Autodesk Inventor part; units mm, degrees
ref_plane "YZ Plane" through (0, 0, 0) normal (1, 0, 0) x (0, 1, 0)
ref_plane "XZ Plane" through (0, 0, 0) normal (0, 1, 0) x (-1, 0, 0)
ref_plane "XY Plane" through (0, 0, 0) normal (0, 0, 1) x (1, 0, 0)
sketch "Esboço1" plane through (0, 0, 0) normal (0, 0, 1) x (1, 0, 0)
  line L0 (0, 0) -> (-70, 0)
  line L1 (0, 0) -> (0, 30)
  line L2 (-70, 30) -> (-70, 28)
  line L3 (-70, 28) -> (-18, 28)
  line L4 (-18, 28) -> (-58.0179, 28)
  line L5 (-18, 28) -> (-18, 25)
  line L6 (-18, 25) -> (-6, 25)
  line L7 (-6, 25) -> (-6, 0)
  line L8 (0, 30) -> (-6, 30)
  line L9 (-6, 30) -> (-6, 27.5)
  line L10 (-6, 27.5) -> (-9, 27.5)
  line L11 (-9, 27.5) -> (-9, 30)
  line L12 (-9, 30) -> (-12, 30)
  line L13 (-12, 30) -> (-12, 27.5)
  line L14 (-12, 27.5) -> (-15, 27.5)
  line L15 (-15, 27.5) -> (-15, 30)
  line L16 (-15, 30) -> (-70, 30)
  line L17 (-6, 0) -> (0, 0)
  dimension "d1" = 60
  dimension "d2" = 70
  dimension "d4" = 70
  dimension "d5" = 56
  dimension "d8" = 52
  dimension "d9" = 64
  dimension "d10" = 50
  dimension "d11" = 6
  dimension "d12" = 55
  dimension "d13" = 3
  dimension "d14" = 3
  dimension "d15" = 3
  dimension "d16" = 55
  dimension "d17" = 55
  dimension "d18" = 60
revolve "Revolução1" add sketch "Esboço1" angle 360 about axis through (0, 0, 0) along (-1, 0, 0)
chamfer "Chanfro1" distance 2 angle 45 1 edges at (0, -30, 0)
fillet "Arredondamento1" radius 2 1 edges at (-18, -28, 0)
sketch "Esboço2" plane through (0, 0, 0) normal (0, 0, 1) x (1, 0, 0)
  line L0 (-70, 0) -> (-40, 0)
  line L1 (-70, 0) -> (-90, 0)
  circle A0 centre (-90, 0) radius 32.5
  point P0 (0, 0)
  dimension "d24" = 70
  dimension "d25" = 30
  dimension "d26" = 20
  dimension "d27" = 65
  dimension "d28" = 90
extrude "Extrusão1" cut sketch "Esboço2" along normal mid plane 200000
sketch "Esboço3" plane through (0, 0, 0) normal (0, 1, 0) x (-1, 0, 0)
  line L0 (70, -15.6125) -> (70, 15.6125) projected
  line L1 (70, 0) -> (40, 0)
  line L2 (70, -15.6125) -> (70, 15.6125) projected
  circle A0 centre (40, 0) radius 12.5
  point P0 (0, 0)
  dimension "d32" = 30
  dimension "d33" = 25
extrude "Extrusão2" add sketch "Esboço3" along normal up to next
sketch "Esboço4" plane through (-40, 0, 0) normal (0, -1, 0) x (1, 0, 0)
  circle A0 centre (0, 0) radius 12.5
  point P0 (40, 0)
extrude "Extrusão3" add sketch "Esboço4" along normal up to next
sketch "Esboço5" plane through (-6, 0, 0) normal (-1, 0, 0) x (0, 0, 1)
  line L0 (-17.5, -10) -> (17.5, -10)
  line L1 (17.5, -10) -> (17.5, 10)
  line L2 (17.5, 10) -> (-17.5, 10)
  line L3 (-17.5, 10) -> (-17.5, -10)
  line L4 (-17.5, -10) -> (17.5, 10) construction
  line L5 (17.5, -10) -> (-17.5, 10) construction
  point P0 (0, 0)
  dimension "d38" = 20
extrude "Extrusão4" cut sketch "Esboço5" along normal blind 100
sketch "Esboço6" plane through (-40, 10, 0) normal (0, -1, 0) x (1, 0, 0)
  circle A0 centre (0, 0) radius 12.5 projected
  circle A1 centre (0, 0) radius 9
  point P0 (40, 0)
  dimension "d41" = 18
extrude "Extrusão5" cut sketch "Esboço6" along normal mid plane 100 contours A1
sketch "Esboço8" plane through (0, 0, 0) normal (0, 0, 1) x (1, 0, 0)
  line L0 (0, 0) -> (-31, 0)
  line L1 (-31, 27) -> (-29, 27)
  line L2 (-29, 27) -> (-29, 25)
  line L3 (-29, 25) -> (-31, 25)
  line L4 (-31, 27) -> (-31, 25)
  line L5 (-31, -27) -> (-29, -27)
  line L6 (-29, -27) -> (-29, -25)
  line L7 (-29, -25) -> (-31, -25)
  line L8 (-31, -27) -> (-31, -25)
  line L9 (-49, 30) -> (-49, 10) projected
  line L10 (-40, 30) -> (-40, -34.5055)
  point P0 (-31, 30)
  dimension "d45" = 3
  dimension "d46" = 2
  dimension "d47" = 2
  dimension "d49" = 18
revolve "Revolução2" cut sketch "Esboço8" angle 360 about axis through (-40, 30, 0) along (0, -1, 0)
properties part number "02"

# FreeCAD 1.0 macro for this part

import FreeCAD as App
import Part
import Sketcher
Q = App.Units.Quantity


def edges_at(feature, points):
    """Names of the edges that pass closest to the given points."""
    edges = feature.Shape.Edges
    near = lambda p: min(range(len(edges)), key=lambda i: edges[i].distToShape(Part.Vertex(*p))[0])
    return sorted({f"Edge{near(p) + 1}" for p in points})

doc = App.newDocument("Part")
body = doc.addObject("PartDesign::Body", "Body")

# Sketch on XY plane
sketch1 = doc.addObject("Sketcher::SketchObject", "Sketch")
body.addObject(sketch1)
sketch1.AttachmentSupport = (doc.XY_Plane, [""])
sketch1.MapMode = "FlatFace"
sketch1.addGeometry([
    Part.LineSegment(App.Vector(-6, 0, 0), App.Vector(0, 0, 0)),  # 0
    Part.LineSegment(App.Vector(0, 0, 0), App.Vector(0, 30, 0)),  # 1
    Part.LineSegment(App.Vector(0, 30, 0), App.Vector(-6, 30, 0)),  # 2
    Part.LineSegment(App.Vector(-6, 30, 0), App.Vector(-6, 27.5, 0)),  # 3
    Part.LineSegment(App.Vector(-6, 27.5, 0), App.Vector(-9, 27.5, 0)),  # 4
    Part.LineSegment(App.Vector(-9, 27.5, 0), App.Vector(-9, 30, 0)),  # 5
    Part.LineSegment(App.Vector(-9, 30, 0), App.Vector(-12, 30, 0)),  # 6
    Part.LineSegment(App.Vector(-12, 30, 0), App.Vector(-12, 27.5, 0)),  # 7
    Part.LineSegment(App.Vector(-12, 27.5, 0), App.Vector(-15, 27.5, 0)),  # 8
    Part.LineSegment(App.Vector(-15, 27.5, 0), App.Vector(-15, 30, 0)),  # 9
    Part.LineSegment(App.Vector(-15, 30, 0), App.Vector(-70, 30, 0)),  # 10
    Part.LineSegment(App.Vector(-70, 30, 0), App.Vector(-70, 28, 0)),  # 11
    Part.LineSegment(App.Vector(-70, 28, 0), App.Vector(-18, 28, 0)),  # 12
    Part.LineSegment(App.Vector(-18, 28, 0), App.Vector(-18, 25, 0)),  # 13
    Part.LineSegment(App.Vector(-18, 25, 0), App.Vector(-6, 25, 0)),  # 14
    Part.LineSegment(App.Vector(-6, 25, 0), App.Vector(-6, 0, 0)),  # 15
], False)
sketch1.addConstraint([
    Sketcher.Constraint("Coincident", 0, 2, 1, 1),
    Sketcher.Constraint("Coincident", 1, 2, 2, 1),
    Sketcher.Constraint("Coincident", 2, 2, 3, 1),
    Sketcher.Constraint("Coincident", 3, 2, 4, 1),
    Sketcher.Constraint("Coincident", 4, 2, 5, 1),
    Sketcher.Constraint("Coincident", 5, 2, 6, 1),
    Sketcher.Constraint("Coincident", 6, 2, 7, 1),
    Sketcher.Constraint("Coincident", 7, 2, 8, 1),
    Sketcher.Constraint("Coincident", 8, 2, 9, 1),
    Sketcher.Constraint("Coincident", 9, 2, 10, 1),
    Sketcher.Constraint("Coincident", 10, 2, 11, 1),
    Sketcher.Constraint("Coincident", 11, 2, 12, 1),
    Sketcher.Constraint("Coincident", 12, 2, 13, 1),
    Sketcher.Constraint("Coincident", 13, 2, 14, 1),
    Sketcher.Constraint("Coincident", 14, 2, 15, 1),
    Sketcher.Constraint("Coincident", 15, 2, 0, 1),
    Sketcher.Constraint("Horizontal", 0),
    Sketcher.Constraint("Vertical", 1),
    Sketcher.Constraint("Horizontal", 2),
    Sketcher.Constraint("Vertical", 3),
    Sketcher.Constraint("Horizontal", 4),
    Sketcher.Constraint("Vertical", 5),
    Sketcher.Constraint("Horizontal", 6),
    Sketcher.Constraint("Vertical", 7),
    Sketcher.Constraint("Horizontal", 8),
    Sketcher.Constraint("Vertical", 9),
    Sketcher.Constraint("Horizontal", 10),
    Sketcher.Constraint("Vertical", 11),
    Sketcher.Constraint("Horizontal", 12),
    Sketcher.Constraint("Vertical", 13),
    Sketcher.Constraint("Horizontal", 14),
    Sketcher.Constraint("Vertical", 15),
    Sketcher.Constraint("Coincident", 0, 2, -1, 1),
    Sketcher.Constraint("Horizontal", 2, 2, 5, 2),
    Sketcher.Constraint("Horizontal", 4, 2, 7, 2),
    Sketcher.Constraint("Horizontal", 6, 2, 9, 2),
    Sketcher.Constraint("Vertical", 3, 2, 14, 2),
    Sketcher.Constraint("Equal", 4, 6),
    Sketcher.Constraint("Equal", 6, 8),
    Sketcher.Constraint("Equal", 8, 13),
    Sketcher.Constraint("DistanceX", 0, 1, 0, 2, Q("6 mm")),
    Sketcher.Constraint("DistanceX", 4, 2, 4, 1, Q("3 mm")),
    Sketcher.Constraint("DistanceX", 10, 2, 10, 1, Q("55 mm")),
    Sketcher.Constraint("DistanceX", 12, 1, 12, 2, Q("52 mm")),
    Sketcher.Constraint("DistanceY", 1, 1, 1, 2, Q("30 mm")),
    Sketcher.Constraint("DistanceY", 11, 2, 11, 1, Q("2 mm")),
    Sketcher.Constraint("DistanceY", 3, 2, 3, 1, Q("2.5 mm")),
])
revolution = doc.addObject("PartDesign::Revolution", "Revolution")
body.addObject(revolution)
revolution.Profile = sketch1
revolution.ReferenceAxis = (sketch1, ["H_Axis"])
revolution.Angle = 360
doc.recompute()

chamfer = doc.addObject("PartDesign::Chamfer", "Chamfer")
body.addObject(chamfer)
chamfer.Base = (revolution, edges_at(revolution, [(0, -30, 0)]))
chamfer.Size = 2
doc.recompute()

fillet = doc.addObject("PartDesign::Fillet", "Fillet")
body.addObject(fillet)
fillet.Base = (chamfer, edges_at(chamfer, [(-18, -28, 0)]))
fillet.Radius = 2

# Sketch on XY plane
sketch2 = doc.addObject("Sketcher::SketchObject", "Sketch001")
body.addObject(sketch2)
sketch2.AttachmentSupport = (doc.XY_Plane, [""])
sketch2.MapMode = "FlatFace"
sketch2.addGeometry(Part.Circle(App.Vector(-90, 0, 0), App.Vector(0, 0, 1), 32.5), False)
sketch2.addConstraint([
    Sketcher.Constraint("PointOnObject", 0, 3, -1),
    Sketcher.Constraint("Diameter", 0, Q("65 mm")),
    Sketcher.Constraint("DistanceX", 0, 3, -1, 1, Q("90 mm")),
])
pocket1 = doc.addObject("PartDesign::Pocket", "Pocket")
body.addObject(pocket1)
pocket1.Profile = sketch2
pocket1.Length = 200000
pocket1.Midplane = True

# Sketch on XZ plane
sketch3 = doc.addObject("Sketcher::SketchObject", "Sketch002")
body.addObject(sketch3)
sketch3.AttachmentSupport = (doc.XZ_Plane, [""])
sketch3.MapMode = "FlatFace"
sketch3.addGeometry(Part.Circle(App.Vector(-40, 0, 0), App.Vector(0, 0, 1), 12.5), False)
sketch3.addConstraint([
    Sketcher.Constraint("PointOnObject", 0, 3, -1),
    Sketcher.Constraint("Diameter", 0, Q("25 mm")),
    Sketcher.Constraint("DistanceX", 0, 3, -1, 1, Q("40 mm")),
])
pad1 = doc.addObject("PartDesign::Pad", "Pad")
body.addObject(pad1)
pad1.Profile = sketch3
pad1.Type = "UpToFirst"
pad1.Reversed = True

# Sketch on XZ plane
sketch4 = doc.addObject("Sketcher::SketchObject", "Sketch003")
body.addObject(sketch4)
sketch4.AttachmentSupport = (doc.XZ_Plane, [""])
sketch4.MapMode = "FlatFace"
sketch4.addGeometry(Part.Circle(App.Vector(-40, 0, 0), App.Vector(0, 0, 1), 12.5), False)
sketch4.addConstraint([
    Sketcher.Constraint("PointOnObject", 0, 3, -1),
    Sketcher.Constraint("Diameter", 0, Q("25 mm")),
    Sketcher.Constraint("DistanceX", 0, 3, -1, 1, Q("40 mm")),
])
pad2 = doc.addObject("PartDesign::Pad", "Pad001")
body.addObject(pad2)
pad2.Profile = sketch4
pad2.Type = "UpToFirst"

# Sketch on YZ plane
sketch5 = doc.addObject("Sketcher::SketchObject", "Sketch004")
body.addObject(sketch5)
sketch5.AttachmentSupport = (doc.YZ_Plane, [""])
sketch5.MapMode = "FlatFace"
sketch5.AttachmentOffset = App.Placement(App.Vector(0, 0, -6), App.Rotation())
sketch5.addGeometry([
    Part.LineSegment(App.Vector(10, -17.5, 0), App.Vector(-10, -17.5, 0)),
    Part.LineSegment(App.Vector(-10, -17.5, 0), App.Vector(-10, 17.5, 0)),
    Part.LineSegment(App.Vector(-10, 17.5, 0), App.Vector(10, 17.5, 0)),
    Part.LineSegment(App.Vector(10, 17.5, 0), App.Vector(10, -17.5, 0)),
], False)
sketch5.addConstraint([
    Sketcher.Constraint("Coincident", 0, 2, 1, 1),
    Sketcher.Constraint("Coincident", 1, 2, 2, 1),
    Sketcher.Constraint("Coincident", 2, 2, 3, 1),
    Sketcher.Constraint("Coincident", 3, 2, 0, 1),
    Sketcher.Constraint("Horizontal", 0),
    Sketcher.Constraint("Vertical", 1),
    Sketcher.Constraint("Horizontal", 2),
    Sketcher.Constraint("Vertical", 3),
    Sketcher.Constraint("Symmetric", 0, 2, 2, 2, -1, 1),
    Sketcher.Constraint("DistanceX", 0, 2, 0, 1, Q("20 mm")),
    Sketcher.Constraint("DistanceY", 1, 1, 1, 2, Q("35 mm")),
])
pocket2 = doc.addObject("PartDesign::Pocket", "Pocket001")
body.addObject(pocket2)
pocket2.Profile = sketch5
pocket2.Length = 100

# Sketch on XZ plane
sketch6 = doc.addObject("Sketcher::SketchObject", "Sketch005")
body.addObject(sketch6)
sketch6.AttachmentSupport = (doc.XZ_Plane, [""])
sketch6.MapMode = "FlatFace"
sketch6.AttachmentOffset = App.Placement(App.Vector(0, 0, -10), App.Rotation())
sketch6.addGeometry(Part.Circle(App.Vector(-40, 0, 0), App.Vector(0, 0, 1), 9), False)
sketch6.addConstraint([
    Sketcher.Constraint("PointOnObject", 0, 3, -1),
    Sketcher.Constraint("Diameter", 0, Q("18 mm")),
    Sketcher.Constraint("DistanceX", 0, 3, -1, 1, Q("40 mm")),
])
pocket3 = doc.addObject("PartDesign::Pocket", "Pocket002")
body.addObject(pocket3)
pocket3.Profile = sketch6
pocket3.Length = 100
pocket3.Midplane = True

# Sketch on XY plane
sketch7 = doc.addObject("Sketcher::SketchObject", "Sketch006")
body.addObject(sketch7)
sketch7.AttachmentSupport = (doc.XY_Plane, [""])
sketch7.MapMode = "FlatFace"
sketch7.addGeometry([
    Part.LineSegment(App.Vector(-29, 27, 0), App.Vector(-31, 27, 0)),  # 0
    Part.LineSegment(App.Vector(-31, 27, 0), App.Vector(-31, 25, 0)),  # 1
    Part.LineSegment(App.Vector(-31, 25, 0), App.Vector(-29, 25, 0)),  # 2
    Part.LineSegment(App.Vector(-29, 25, 0), App.Vector(-29, 27, 0)),  # 3
    Part.LineSegment(App.Vector(-31, -25, 0), App.Vector(-31, -27, 0)),  # 4
    Part.LineSegment(App.Vector(-31, -27, 0), App.Vector(-29, -27, 0)),  # 5
    Part.LineSegment(App.Vector(-29, -27, 0), App.Vector(-29, -25, 0)),  # 6
    Part.LineSegment(App.Vector(-29, -25, 0), App.Vector(-31, -25, 0)),  # 7
], False)
sketch7.addGeometry(Part.LineSegment(App.Vector(-40, 27, 0), App.Vector(-40, -27, 0)), True)  # axis
sketch7.addConstraint([
    Sketcher.Constraint("Coincident", 0, 2, 1, 1),
    Sketcher.Constraint("Coincident", 1, 2, 2, 1),
    Sketcher.Constraint("Coincident", 2, 2, 3, 1),
    Sketcher.Constraint("Coincident", 3, 2, 0, 1),
    Sketcher.Constraint("Coincident", 4, 2, 5, 1),
    Sketcher.Constraint("Coincident", 5, 2, 6, 1),
    Sketcher.Constraint("Coincident", 6, 2, 7, 1),
    Sketcher.Constraint("Coincident", 7, 2, 4, 1),
    Sketcher.Constraint("Horizontal", 0),
    Sketcher.Constraint("Vertical", 1),
    Sketcher.Constraint("Horizontal", 2),
    Sketcher.Constraint("Vertical", 3),
    Sketcher.Constraint("Vertical", 4),
    Sketcher.Constraint("Horizontal", 5),
    Sketcher.Constraint("Vertical", 6),
    Sketcher.Constraint("Horizontal", 7),
    Sketcher.Constraint("Vertical", 8),
    Sketcher.Constraint("Symmetric", 0, 2, 4, 2, -1),
    Sketcher.Constraint("Symmetric", 2, 2, 6, 2, -1),
    Sketcher.Constraint("Horizontal", 3, 2, 8, 1),
    Sketcher.Constraint("Horizontal", 5, 2, 8, 2),
    Sketcher.Constraint("Equal", 7, 1),
    Sketcher.Constraint("DistanceX", 0, 2, 0, 1, Q("2 mm")),
    Sketcher.Constraint("DistanceY", 8, 2, 8, 1, Q("54 mm")),
    Sketcher.Constraint("DistanceX", 0, 2, -1, 1, Q("31 mm")),
    Sketcher.Constraint("DistanceX", 8, 1, -1, 1, Q("40 mm")),
])
groove = doc.addObject("PartDesign::Groove", "Groove")
body.addObject(groove)
groove.Profile = sketch7
groove.ReferenceAxis = (sketch7, ["Axis0"])
groove.Angle = 360

doc.recompute()
